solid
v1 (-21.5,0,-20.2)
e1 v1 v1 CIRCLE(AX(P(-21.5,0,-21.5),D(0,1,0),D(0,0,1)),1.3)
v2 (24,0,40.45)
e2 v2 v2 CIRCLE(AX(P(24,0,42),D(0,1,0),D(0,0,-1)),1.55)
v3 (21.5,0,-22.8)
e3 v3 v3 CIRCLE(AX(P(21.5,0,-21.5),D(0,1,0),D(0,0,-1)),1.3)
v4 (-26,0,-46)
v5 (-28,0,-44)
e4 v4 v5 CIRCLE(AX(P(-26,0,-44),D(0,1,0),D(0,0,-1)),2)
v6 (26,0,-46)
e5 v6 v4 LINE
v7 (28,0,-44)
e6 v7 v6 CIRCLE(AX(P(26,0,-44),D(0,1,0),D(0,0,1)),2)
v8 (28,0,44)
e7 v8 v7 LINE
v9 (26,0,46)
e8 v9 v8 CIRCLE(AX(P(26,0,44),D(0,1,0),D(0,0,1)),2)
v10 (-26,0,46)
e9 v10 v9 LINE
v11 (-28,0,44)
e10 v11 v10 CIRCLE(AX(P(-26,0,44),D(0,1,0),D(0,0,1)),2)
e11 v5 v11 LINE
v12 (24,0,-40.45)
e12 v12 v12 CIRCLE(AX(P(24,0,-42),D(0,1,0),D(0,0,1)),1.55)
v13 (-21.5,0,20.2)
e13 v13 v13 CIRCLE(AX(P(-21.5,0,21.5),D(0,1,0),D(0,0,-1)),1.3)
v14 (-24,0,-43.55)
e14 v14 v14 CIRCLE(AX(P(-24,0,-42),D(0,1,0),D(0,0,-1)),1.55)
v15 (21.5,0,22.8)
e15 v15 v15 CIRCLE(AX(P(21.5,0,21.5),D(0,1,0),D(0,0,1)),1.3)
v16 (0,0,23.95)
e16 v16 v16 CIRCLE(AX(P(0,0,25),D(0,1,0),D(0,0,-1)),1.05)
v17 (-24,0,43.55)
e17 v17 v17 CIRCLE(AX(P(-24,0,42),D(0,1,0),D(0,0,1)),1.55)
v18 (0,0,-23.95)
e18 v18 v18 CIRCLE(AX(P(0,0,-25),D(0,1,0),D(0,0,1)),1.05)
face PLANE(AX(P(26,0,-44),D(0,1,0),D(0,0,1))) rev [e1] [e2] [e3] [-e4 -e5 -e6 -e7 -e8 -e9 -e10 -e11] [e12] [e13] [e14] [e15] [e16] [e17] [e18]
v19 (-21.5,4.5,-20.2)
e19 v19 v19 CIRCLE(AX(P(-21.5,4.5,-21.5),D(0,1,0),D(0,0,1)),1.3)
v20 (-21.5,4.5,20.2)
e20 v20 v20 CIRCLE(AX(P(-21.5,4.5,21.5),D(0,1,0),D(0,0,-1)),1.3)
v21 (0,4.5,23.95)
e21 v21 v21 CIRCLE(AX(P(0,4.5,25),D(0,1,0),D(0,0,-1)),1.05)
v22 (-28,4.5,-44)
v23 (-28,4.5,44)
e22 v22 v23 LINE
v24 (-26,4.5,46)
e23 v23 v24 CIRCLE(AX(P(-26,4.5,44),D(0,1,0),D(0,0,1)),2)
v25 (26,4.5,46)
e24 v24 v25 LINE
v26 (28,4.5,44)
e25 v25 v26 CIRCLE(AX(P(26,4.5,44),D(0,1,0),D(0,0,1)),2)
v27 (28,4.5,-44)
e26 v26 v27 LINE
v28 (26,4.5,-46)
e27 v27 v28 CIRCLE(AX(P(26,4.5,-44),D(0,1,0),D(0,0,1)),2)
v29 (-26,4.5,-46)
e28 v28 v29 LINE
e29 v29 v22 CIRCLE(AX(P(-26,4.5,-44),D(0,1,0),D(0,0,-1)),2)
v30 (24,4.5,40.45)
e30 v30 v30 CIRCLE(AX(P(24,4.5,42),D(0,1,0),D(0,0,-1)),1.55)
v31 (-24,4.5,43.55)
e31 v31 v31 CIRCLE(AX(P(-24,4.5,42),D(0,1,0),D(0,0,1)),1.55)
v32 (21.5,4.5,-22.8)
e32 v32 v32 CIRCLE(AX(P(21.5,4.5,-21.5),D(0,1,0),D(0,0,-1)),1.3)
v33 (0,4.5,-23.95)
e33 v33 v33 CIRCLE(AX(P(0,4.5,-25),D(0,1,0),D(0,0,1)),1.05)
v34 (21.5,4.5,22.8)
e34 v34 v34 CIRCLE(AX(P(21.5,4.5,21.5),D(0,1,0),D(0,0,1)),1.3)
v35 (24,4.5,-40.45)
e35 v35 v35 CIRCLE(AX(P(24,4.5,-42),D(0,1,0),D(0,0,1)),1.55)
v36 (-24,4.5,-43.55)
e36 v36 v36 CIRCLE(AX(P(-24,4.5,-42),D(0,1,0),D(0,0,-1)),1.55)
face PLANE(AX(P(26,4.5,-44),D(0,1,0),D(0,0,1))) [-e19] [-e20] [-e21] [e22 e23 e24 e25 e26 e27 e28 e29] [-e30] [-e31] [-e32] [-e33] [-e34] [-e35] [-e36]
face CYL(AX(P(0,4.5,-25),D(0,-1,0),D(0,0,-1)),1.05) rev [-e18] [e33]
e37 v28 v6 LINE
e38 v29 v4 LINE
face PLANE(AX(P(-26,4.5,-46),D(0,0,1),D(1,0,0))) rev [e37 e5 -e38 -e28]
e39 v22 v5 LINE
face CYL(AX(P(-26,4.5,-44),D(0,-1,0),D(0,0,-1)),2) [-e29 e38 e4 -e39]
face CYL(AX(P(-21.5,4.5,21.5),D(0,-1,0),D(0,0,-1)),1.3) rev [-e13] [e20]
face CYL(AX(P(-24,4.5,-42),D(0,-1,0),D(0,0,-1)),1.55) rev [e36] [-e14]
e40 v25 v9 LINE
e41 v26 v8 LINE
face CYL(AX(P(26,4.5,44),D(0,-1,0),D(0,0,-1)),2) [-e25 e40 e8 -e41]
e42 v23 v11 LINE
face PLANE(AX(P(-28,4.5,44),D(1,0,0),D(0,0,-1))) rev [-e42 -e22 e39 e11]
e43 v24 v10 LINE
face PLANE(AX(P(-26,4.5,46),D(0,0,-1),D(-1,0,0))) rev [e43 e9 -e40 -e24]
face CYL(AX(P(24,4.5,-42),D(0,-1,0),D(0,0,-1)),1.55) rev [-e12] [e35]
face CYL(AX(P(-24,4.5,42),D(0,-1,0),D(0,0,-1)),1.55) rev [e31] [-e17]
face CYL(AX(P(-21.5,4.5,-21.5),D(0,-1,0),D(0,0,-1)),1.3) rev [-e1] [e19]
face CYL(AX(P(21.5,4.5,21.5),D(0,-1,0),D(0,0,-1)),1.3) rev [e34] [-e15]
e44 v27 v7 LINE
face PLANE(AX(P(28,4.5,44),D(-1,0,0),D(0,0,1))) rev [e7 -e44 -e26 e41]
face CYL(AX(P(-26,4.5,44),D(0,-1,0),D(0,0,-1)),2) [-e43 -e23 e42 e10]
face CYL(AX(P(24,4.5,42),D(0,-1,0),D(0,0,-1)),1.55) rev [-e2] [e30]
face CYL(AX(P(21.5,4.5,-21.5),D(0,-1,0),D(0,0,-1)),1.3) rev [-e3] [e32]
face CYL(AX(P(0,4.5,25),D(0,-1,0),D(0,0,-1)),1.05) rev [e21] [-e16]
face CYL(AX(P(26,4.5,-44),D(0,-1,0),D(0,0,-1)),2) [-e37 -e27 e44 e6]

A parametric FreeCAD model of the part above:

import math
import FreeCAD as App
import Part
import Sketcher
from FreeCAD import Vector

doc = App.newDocument("Part")
params = doc.addObject("Spreadsheet::Sheet", "Params")
for row, (alias, value) in enumerate([
    ("sketch1_radius", "2 mm"),
    ("sketch1_diameter", "3.1 mm"),
    ("sketch1_diameter2", "2.6 mm"),
    ("sketch1_diameter3", "2.1 mm"),
    ("sketch1_width", "52 mm"),
    ("pad1_length", "4.5 mm"),
], start=1):
    params.set(f"A{row}", alias)
    params.set(f"B{row}", "=" + value)
    params.setAlias(f"B{row}", alias)

body = doc.addObject("PartDesign::Body", "Body")

sketch1 = body.newObject("Sketcher::SketchObject", "Sketch")
sketch1.AttachmentSupport = (doc.getObject("XZ_Plane"), [""])
sketch1.MapMode = "FlatFace"
sketch1.addGeometry(Part.LineSegment(Vector(-26, 46, 0), Vector(26, 46, 0)), False)
sketch1.addGeometry(Part.ArcOfCircle(Part.Circle(Vector(26, 44, 0), Vector(0, 0, 1), 2), math.radians(0), math.radians(90)), False)
sketch1.addGeometry(Part.LineSegment(Vector(28, 44, 0), Vector(28, -44, 0)), False)
sketch1.addGeometry(Part.ArcOfCircle(Part.Circle(Vector(26, -44, 0), Vector(0, 0, 1), 2), math.radians(-90), math.radians(0)), False)
sketch1.addGeometry(Part.LineSegment(Vector(26, -46, 0), Vector(-26, -46, 0)), False)
sketch1.addGeometry(Part.ArcOfCircle(Part.Circle(Vector(-26, -44, 0), Vector(0, 0, 1), 2), math.radians(-180), math.radians(-90)), False)
sketch1.addGeometry(Part.LineSegment(Vector(-28, -44, 0), Vector(-28, 44, 0)), False)
sketch1.addGeometry(Part.ArcOfCircle(Part.Circle(Vector(-26, 44, 0), Vector(0, 0, 1), 2), math.radians(90), math.radians(180)), False)
sketch1.addGeometry(Part.Circle(Vector(-24, 42, 0), Vector(0, 0, 1), 1.55), False)
sketch1.addGeometry(Part.Circle(Vector(-21.5, 21.5, 0), Vector(0, 0, 1), 1.3), False)
sketch1.addGeometry(Part.Circle(Vector(0, 25, 0), Vector(0, 0, 1), 1.05), False)
sketch1.addGeometry(Part.Circle(Vector(24, 42, 0), Vector(0, 0, 1), 1.55), False)
sketch1.addGeometry(Part.Circle(Vector(21.5, 21.5, 0), Vector(0, 0, 1), 1.3), False)
sketch1.addGeometry(Part.Circle(Vector(-21.5, -21.5, 0), Vector(0, 0, 1), 1.3), False)
sketch1.addGeometry(Part.Circle(Vector(-24, -42, 0), Vector(0, 0, 1), 1.55), False)
sketch1.addGeometry(Part.Circle(Vector(21.5, -21.5, 0), Vector(0, 0, 1), 1.3), False)
sketch1.addGeometry(Part.Circle(Vector(0, -25, 0), Vector(0, 0, 1), 1.05), False)
sketch1.addGeometry(Part.Circle(Vector(24, -42, 0), Vector(0, 0, 1), 1.55), False)
sketch1.addConstraint(Sketcher.Constraint("Tangent", 0, 2, 1, 2))
sketch1.addConstraint(Sketcher.Constraint("Tangent", 1, 1, 2, 1))
sketch1.addConstraint(Sketcher.Constraint("Tangent", 2, 2, 3, 2))
sketch1.addConstraint(Sketcher.Constraint("Tangent", 3, 1, 4, 1))
sketch1.addConstraint(Sketcher.Constraint("Tangent", 4, 2, 5, 2))
sketch1.addConstraint(Sketcher.Constraint("Tangent", 5, 1, 6, 1))
sketch1.addConstraint(Sketcher.Constraint("Tangent", 6, 2, 7, 2))
sketch1.addConstraint(Sketcher.Constraint("Tangent", 7, 1, 0, 1))
sketch1.addConstraint(Sketcher.Constraint("Horizontal", 0))
sketch1.addConstraint(Sketcher.Constraint("Vertical", 2))
sketch1.addConstraint(Sketcher.Constraint("Horizontal", 4))
sketch1.addConstraint(Sketcher.Constraint("Vertical", 6))
sketch1.addConstraint(Sketcher.Constraint("Equal", 1, 3))
sketch1.addConstraint(Sketcher.Constraint("Equal", 3, 5))
sketch1.addConstraint(Sketcher.Constraint("Equal", 5, 7))
sketch1.addConstraint(Sketcher.Constraint("Equal", 8, 11))
sketch1.addConstraint(Sketcher.Constraint("Equal", 9, 12))
sketch1.addConstraint(Sketcher.Constraint("Equal", 12, 13))
sketch1.addConstraint(Sketcher.Constraint("Equal", 11, 14))
sketch1.addConstraint(Sketcher.Constraint("Equal", 13, 15))
sketch1.addConstraint(Sketcher.Constraint("Equal", 10, 16))
sketch1.addConstraint(Sketcher.Constraint("Equal", 14, 17))
sketch1.addConstraint(Sketcher.Constraint("Symmetric", 1, 3, 5, 3, -1, 1))
sketch1.addConstraint(Sketcher.Constraint("Symmetric", 12, 3, 13, 3, -1, 1))
sketch1.addConstraint(Sketcher.Constraint("Symmetric", 11, 3, 14, 3, -1, 1))
sketch1.addConstraint(Sketcher.Constraint("Symmetric", 9, 3, 15, 3, -1, 1))
sketch1.addConstraint(Sketcher.Constraint("Symmetric", 10, 3, 16, 3, -1, 1))
sketch1.addConstraint(Sketcher.Constraint("Symmetric", 8, 3, 17, 3, -1, 1))
sketch1.addConstraint(Sketcher.Constraint("Symmetric", 8, 3, 11, 3, -2))
sketch1.addConstraint(Sketcher.Constraint("Symmetric", 9, 3, 12, 3, -2))
sketch1.addConstraint(Sketcher.Constraint("PointOnObject", 10, 3, -2))
sketch1.addConstraint(Sketcher.Constraint("Radius", 1, 2.0))
sketch1.addConstraint(Sketcher.Constraint("Diameter", 8, 3.1))
sketch1.addConstraint(Sketcher.Constraint("Diameter", 9, 2.6))
sketch1.addConstraint(Sketcher.Constraint("Diameter", 10, 2.1))
sketch1.addConstraint(Sketcher.Constraint("DistanceX", 0, 1, 0, 2, 52.0))
sketch1.addConstraint(Sketcher.Constraint("DistanceY", 2, 2, 2, 1, 88.0))
sketch1.addConstraint(Sketcher.Constraint("DistanceX", 8, 3, -1, 1, 24.0))
sketch1.addConstraint(Sketcher.Constraint("DistanceY", -1, 1, 8, 3, 42.0))
sketch1.addConstraint(Sketcher.Constraint("DistanceY", -1, 1, 10, 3, 25.0))
sketch1.addConstraint(Sketcher.Constraint("DistanceX", 9, 3, 12, 3, 43.0))
sketch1.addConstraint(Sketcher.Constraint("DistanceY", 13, 3, 9, 3, 43.0))
sketch1.setExpression("Constraints[31]", "Params.sketch1_radius")
sketch1.setExpression("Constraints[32]", "Params.sketch1_diameter")
sketch1.setExpression("Constraints[33]", "Params.sketch1_diameter2")
sketch1.setExpression("Constraints[34]", "Params.sketch1_diameter3")
sketch1.setExpression("Constraints[35]", "Params.sketch1_width")
pad1 = body.newObject("PartDesign::Pad", "Pad")
pad1.Profile = sketch1
pad1.setExpression("Length", "Params.pad1_length")
pad1.Reversed = True

doc.recompute()
